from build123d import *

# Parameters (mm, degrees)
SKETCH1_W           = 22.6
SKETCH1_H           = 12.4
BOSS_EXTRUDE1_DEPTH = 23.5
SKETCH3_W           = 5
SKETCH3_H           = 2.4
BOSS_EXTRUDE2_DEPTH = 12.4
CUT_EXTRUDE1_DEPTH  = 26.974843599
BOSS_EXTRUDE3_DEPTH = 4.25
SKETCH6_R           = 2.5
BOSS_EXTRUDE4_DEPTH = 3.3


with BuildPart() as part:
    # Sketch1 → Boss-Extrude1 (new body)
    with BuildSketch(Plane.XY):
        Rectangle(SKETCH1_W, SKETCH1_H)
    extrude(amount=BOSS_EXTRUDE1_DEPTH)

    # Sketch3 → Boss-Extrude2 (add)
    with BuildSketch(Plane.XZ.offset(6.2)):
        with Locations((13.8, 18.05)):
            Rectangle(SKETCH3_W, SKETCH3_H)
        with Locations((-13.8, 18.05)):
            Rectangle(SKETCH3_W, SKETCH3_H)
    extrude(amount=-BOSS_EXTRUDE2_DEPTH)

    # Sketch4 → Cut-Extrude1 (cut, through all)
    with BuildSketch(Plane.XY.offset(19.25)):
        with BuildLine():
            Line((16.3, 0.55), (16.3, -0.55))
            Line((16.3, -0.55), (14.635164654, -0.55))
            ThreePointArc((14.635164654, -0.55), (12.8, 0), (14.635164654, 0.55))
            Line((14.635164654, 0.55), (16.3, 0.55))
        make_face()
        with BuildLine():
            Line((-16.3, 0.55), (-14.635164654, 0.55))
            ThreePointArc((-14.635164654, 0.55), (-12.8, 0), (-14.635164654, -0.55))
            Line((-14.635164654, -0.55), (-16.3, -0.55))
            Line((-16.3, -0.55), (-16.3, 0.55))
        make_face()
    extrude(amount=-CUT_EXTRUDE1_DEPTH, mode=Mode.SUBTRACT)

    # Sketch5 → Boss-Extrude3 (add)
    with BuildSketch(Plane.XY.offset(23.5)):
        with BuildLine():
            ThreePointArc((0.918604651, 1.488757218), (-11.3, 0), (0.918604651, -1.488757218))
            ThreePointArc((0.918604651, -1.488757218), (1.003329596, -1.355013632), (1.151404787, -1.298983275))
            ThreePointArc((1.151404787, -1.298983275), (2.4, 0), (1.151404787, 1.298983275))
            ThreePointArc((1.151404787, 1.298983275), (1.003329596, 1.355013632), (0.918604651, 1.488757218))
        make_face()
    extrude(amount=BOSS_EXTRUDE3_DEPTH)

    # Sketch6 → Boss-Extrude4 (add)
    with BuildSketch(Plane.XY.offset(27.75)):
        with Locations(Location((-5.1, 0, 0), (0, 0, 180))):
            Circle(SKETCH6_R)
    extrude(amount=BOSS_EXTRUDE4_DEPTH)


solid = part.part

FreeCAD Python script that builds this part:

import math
import FreeCAD as App
import Part
import Sketcher
Q = App.Units.Quantity


def add_polygon(sketch, points):
    """Adds a closed chain of lines whose ends are joined by coincident constraints."""
    first, n = sketch.GeometryCount, len(points)
    for a, b in zip(points, points[1:] + points[:1]):
        sketch.addGeometry(Part.LineSegment(App.Vector(*a, 0), App.Vector(*b, 0)), False)
    for i in range(n):
        sketch.addConstraint(Sketcher.Constraint("Coincident", first + i, 2, first + (i + 1) % n, 1))

doc = App.newDocument("Part")
body = doc.addObject("PartDesign::Body", "Body")

# Sketch on XY plane
sketch1 = body.newObject("Sketcher::SketchObject", "Sketch")
sketch1.AttachmentSupport = (doc.getObject("XY_Plane"), [""])
sketch1.MapMode = "FlatFace"
add_polygon(sketch1, [(-11, 6), (-11, -6), (11, -6), (11, 6)])  # lines 0-3
sketch1.addConstraint([
    Sketcher.Constraint("Vertical", 0),
    Sketcher.Constraint("Horizontal", 1),
    Sketcher.Constraint("Vertical", 2),
    Sketcher.Constraint("Horizontal", 3),
    Sketcher.Constraint("Symmetric", 0, 2, 2, 2, -1, 1),
    Sketcher.Constraint("DistanceX", 1, 1, 1, 2, Q("22.6 mm")),
    Sketcher.Constraint("DistanceY", 0, 2, 0, 1, Q("12.4 mm")),
])
pad1 = body.newObject("PartDesign::Pad", "Pad")
pad1.Profile = sketch1
pad1.Length = 23.5

# Sketch on XZ plane
sketch2 = body.newObject("Sketcher::SketchObject", "Sketch001")
sketch2.AttachmentSupport = (doc.getObject("XZ_Plane"), [""])
sketch2.MapMode = "FlatFace"
sketch2.AttachmentOffset = App.Placement(App.Vector(0, 0, 6.2), App.Rotation())
add_polygon(sketch2, [(11.3, 19.2), (11.3, 16.9), (16.3, 16.9), (16.3, 19.2)])  # lines 0-3
add_polygon(sketch2, [(-16.3, 19.2), (-16.3, 16.9), (-11.3, 16.9), (-11.3, 19.2)])  # lines 4-7
sketch2.addConstraint([
    Sketcher.Constraint("Vertical", 0),
    Sketcher.Constraint("Horizontal", 1),
    Sketcher.Constraint("Vertical", 2),
    Sketcher.Constraint("Horizontal", 3),
    Sketcher.Constraint("Vertical", 4),
    Sketcher.Constraint("Horizontal", 5),
    Sketcher.Constraint("Vertical", 6),
    Sketcher.Constraint("Horizontal", 7),
    Sketcher.Constraint("Symmetric", 1, 2, 4, 2, -2),
    Sketcher.Constraint("Symmetric", 3, 2, 6, 2, -2),
    Sketcher.Constraint("DistanceX", 1, 1, 1, 2, Q("5 mm")),
    Sketcher.Constraint("DistanceY", 0, 2, 0, 1, Q("2.4 mm")),
    Sketcher.Constraint("DistanceX", -1, 1, 0, 2, Q("11.3 mm")),
    Sketcher.Constraint("DistanceY", -1, 1, 0, 2, Q("16.85 mm")),
])
pad2 = body.newObject("PartDesign::Pad", "Pad001")
pad2.Profile = sketch2
pad2.Length = 12.4
pad2.Reversed = True

# Sketch on XY plane
sketch3 = body.newObject("Sketcher::SketchObject", "Sketch002")
sketch3.AttachmentSupport = (doc.getObject("XY_Plane"), [""])
sketch3.MapMode = "FlatFace"
sketch3.AttachmentOffset = App.Placement(App.Vector(0, 0, 19.25), App.Rotation())
sketch3.addGeometry([
    Part.LineSegment(App.Vector(16.3, -0.6, 0), App.Vector(16.3, 0.6, 0)),  # 0
    Part.LineSegment(App.Vector(16.3, 0.6, 0), App.Vector(14.6, 0.6, 0)),  # 1
    Part.ArcOfCircle(Part.Circle(App.Vector(13.8, 0, 0), App.Vector(0, 0, 1), 1), math.radians(33), math.radians(327)),  # 2
    Part.LineSegment(App.Vector(14.6, -0.6, 0), App.Vector(16.3, -0.6, 0)),  # 3
    Part.LineSegment(App.Vector(-14.6, 0.6, 0), App.Vector(-16.3, 0.6, 0)),  # 4
    Part.LineSegment(App.Vector(-16.3, 0.6, 0), App.Vector(-16.3, -0.6, 0)),  # 5
    Part.LineSegment(App.Vector(-16.3, -0.6, 0), App.Vector(-14.6, -0.6, 0)),  # 6
    Part.ArcOfCircle(Part.Circle(App.Vector(-13.8, 0, 0), App.Vector(0, 0, 1), 1), math.radians(-147), math.radians(147)),  # 7
], False)
sketch3.addConstraint([
    Sketcher.Constraint("Coincident", 0, 2, 1, 1),
    Sketcher.Constraint("Coincident", 1, 2, 2, 1),
    Sketcher.Constraint("Coincident", 2, 2, 3, 1),
    Sketcher.Constraint("Coincident", 3, 2, 0, 1),
    Sketcher.Constraint("Coincident", 4, 2, 5, 1),
    Sketcher.Constraint("Coincident", 5, 2, 6, 1),
    Sketcher.Constraint("Coincident", 6, 2, 7, 1),
    Sketcher.Constraint("Coincident", 7, 2, 4, 1),
    Sketcher.Constraint("Vertical", 0),
    Sketcher.Constraint("Horizontal", 1),
    Sketcher.Constraint("Horizontal", 3),
    Sketcher.Constraint("Horizontal", 4),
    Sketcher.Constraint("Vertical", 5),
    Sketcher.Constraint("Horizontal", 6),
    Sketcher.Constraint("Equal", 2, 7),
    Sketcher.Constraint("Symmetric", 2, 3, 7, 3, -1, 1),
    Sketcher.Constraint("Symmetric", 3, 2, 4, 2, -1, 1),
    Sketcher.Constraint("Symmetric", 2, 2, 6, 2, -2),
    Sketcher.Constraint("Horizontal", 1, 2, 4, 2),
    Sketcher.Constraint("Radius", 2, Q("1 mm")),
    Sketcher.Constraint("DistanceY", 0, 1, 0, 2, Q("1.1 mm")),
    Sketcher.Constraint("DistanceX", -1, 1, 2, 3, Q("13.8 mm")),
    Sketcher.Constraint("DistanceX", -1, 1, 0, 2, Q("16.3 mm")),
])
pocket1 = body.newObject("PartDesign::Pocket", "Pocket")
pocket1.Profile = sketch3
pocket1.Type = "ThroughAll"

# Sketch on XY plane
sketch4 = body.newObject("Sketcher::SketchObject", "Sketch003")
sketch4.AttachmentSupport = (doc.getObject("XY_Plane"), [""])
sketch4.MapMode = "FlatFace"
sketch4.AttachmentOffset = App.Placement(App.Vector(0, 0, 23.5), App.Rotation())
sketch4.addGeometry([
    Part.ArcOfCircle(Part.Circle(App.Vector(-5.1, 0, 0), App.Vector(0, 0, 1), 6.2), math.radians(14), math.radians(346)),
    Part.ArcOfCircle(Part.Circle(App.Vector(1.16, -1.55, 0), App.Vector(0, 0, 1), 0.25), math.radians(92), math.radians(166)),
    Part.ArcOfCircle(Part.Circle(App.Vector(1.1, 0, 0), App.Vector(0, 0, 1), 1.3), math.radians(-88), math.radians(88)),
    Part.ArcOfCircle(Part.Circle(App.Vector(1.16, 1.55, 0), App.Vector(0, 0, 1), 0.25), math.radians(-166), math.radians(-92)),
], False)
sketch4.addConstraint([
    Sketcher.Constraint("Tangent", 0, 2, 1, 2),
    Sketcher.Constraint("Tangent", 1, 1, 2, 1),
    Sketcher.Constraint("Tangent", 2, 2, 3, 2),
    Sketcher.Constraint("Tangent", 3, 1, 0, 1),
    Sketcher.Constraint("Equal", 1, 3),
    Sketcher.Constraint("Symmetric", 1, 3, 3, 3, -1),
    Sketcher.Constraint("Radius", 0, Q("6.2 mm")),
    Sketcher.Constraint("Radius", 2, Q("1.3 mm")),
    Sketcher.Constraint("Radius", 1, Q("0.25 mm")),
    Sketcher.Constraint("DistanceX", 0, 3, -1, 1, Q("5.1 mm")),
    Sketcher.Constraint("DistanceX", -1, 1, 2, 3, Q("1.1 mm")),
])
pad3 = body.newObject("PartDesign::Pad", "Pad002")
pad3.Profile = sketch4
pad3.Length = 4.25

# Sketch on XY plane
sketch5 = body.newObject("Sketcher::SketchObject", "Sketch004")
sketch5.AttachmentSupport = (doc.getObject("XY_Plane"), [""])
sketch5.MapMode = "FlatFace"
sketch5.AttachmentOffset = App.Placement(App.Vector(0, 0, 27.75), App.Rotation())
sketch5.addGeometry(Part.Circle(App.Vector(-5.1, 0, 0), App.Vector(0, 0, 1), 2.5), False)
sketch5.addConstraint([
    Sketcher.Constraint("PointOnObject", 0, 3, -1),
    Sketcher.Constraint("Diameter", 0, Q("5 mm")),
    Sketcher.Constraint("DistanceX", 0, 3, -1, 1, Q("5.1 mm")),
])
pad4 = body.newObject("PartDesign::Pad", "Pad003")
pad4.Profile = sketch5
pad4.Length = 3.3

doc.recompute()
